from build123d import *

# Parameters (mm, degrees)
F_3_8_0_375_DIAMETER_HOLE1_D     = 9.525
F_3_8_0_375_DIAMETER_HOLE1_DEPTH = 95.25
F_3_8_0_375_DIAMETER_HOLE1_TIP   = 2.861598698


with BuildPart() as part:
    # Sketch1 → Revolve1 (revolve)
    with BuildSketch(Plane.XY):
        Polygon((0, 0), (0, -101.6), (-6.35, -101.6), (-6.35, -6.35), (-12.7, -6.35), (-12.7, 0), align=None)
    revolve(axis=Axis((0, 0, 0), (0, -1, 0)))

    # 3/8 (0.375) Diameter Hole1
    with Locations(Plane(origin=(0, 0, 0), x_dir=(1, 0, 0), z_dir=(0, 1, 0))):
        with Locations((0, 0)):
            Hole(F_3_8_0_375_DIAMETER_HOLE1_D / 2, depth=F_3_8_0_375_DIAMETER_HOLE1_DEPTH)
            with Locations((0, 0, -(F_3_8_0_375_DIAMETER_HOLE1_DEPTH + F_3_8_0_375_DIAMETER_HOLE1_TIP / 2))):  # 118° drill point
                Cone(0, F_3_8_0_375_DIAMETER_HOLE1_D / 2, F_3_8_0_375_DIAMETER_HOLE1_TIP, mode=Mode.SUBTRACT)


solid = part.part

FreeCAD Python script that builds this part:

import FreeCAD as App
import Part
import Sketcher
from FreeCAD import Vector
Q = App.Units.Quantity

doc = App.newDocument("Part")
body = doc.addObject("PartDesign::Body", "Body")

# Sketch on XY plane
sketch1 = body.newObject("Sketcher::SketchObject", "Sketch")
sketch1.AttachmentSupport = (doc.getObject("XY_Plane"), [""])
sketch1.MapMode = "FlatFace"
sketch1.addGeometry([
    Part.LineSegment(Vector(0, -102, 0), Vector(0, 0, 0)),  # 0
    Part.LineSegment(Vector(0, 0, 0), Vector(-13, 0, 0)),  # 1
    Part.LineSegment(Vector(-13, 0, 0), Vector(-13, -6, 0)),  # 2
    Part.LineSegment(Vector(-13, -6, 0), Vector(-6, -6, 0)),  # 3
    Part.LineSegment(Vector(-6, -6, 0), Vector(-6, -102, 0)),  # 4
    Part.LineSegment(Vector(-6, -102, 0), Vector(0, -102, 0)),  # 5
], False)
sketch1.addConstraint([
    Sketcher.Constraint("Coincident", 0, 2, 1, 1),
    Sketcher.Constraint("Coincident", 1, 2, 2, 1),
    Sketcher.Constraint("Coincident", 2, 2, 3, 1),
    Sketcher.Constraint("Coincident", 3, 2, 4, 1),
    Sketcher.Constraint("Coincident", 4, 2, 5, 1),
    Sketcher.Constraint("Coincident", 5, 2, 0, 1),
    Sketcher.Constraint("Vertical", 0),
    Sketcher.Constraint("Horizontal", 1),
    Sketcher.Constraint("Vertical", 2),
    Sketcher.Constraint("Horizontal", 3),
    Sketcher.Constraint("Vertical", 4),
    Sketcher.Constraint("Horizontal", 5),
    Sketcher.Constraint("Coincident", 0, 2, -1, 1),
    Sketcher.Constraint("Equal", 3, 5),
    Sketcher.Constraint("Equal", 5, 2),
    Sketcher.Constraint("DistanceY", 0, 1, 0, 2, Q("4 in")),
    Sketcher.Constraint("DistanceX", 1, 2, 1, 1, Q("0.5 in")),
])
revolution = body.newObject("PartDesign::Revolution", "Revolution")
revolution.Profile = sketch1
revolution.ReferenceAxis = (sketch1, ["V_Axis"])
revolution.Angle = 360

# Sketch on XZ plane
sketch2 = body.newObject("Sketcher::SketchObject", "Sketch001")
sketch2.AttachmentSupport = (doc.getObject("XZ_Plane"), [""])
sketch2.MapMode = "FlatFace"
sketch2.addGeometry(Part.Circle(Vector(0, 0, 0), Vector(0, 0, 1), 4.8), False)
sketch2.addConstraint([
    Sketcher.Constraint("Coincident", 0, 3, -1, 1),
    Sketcher.Constraint("Diameter", 0, Q("0.375 in")),
])
doc.recompute()
hole = body.newObject("PartDesign::Hole", "Hole")
hole.Profile = sketch2
hole.ThreadType = "None"
hole.Diameter = Q("0.375 in")
hole.DepthType = "Dimension"
hole.Depth = Q("3.75 in")
hole.DrillPoint = "Angled"
hole.DrillPointAngle = 118
hole.Reversed = True

doc.recompute()
